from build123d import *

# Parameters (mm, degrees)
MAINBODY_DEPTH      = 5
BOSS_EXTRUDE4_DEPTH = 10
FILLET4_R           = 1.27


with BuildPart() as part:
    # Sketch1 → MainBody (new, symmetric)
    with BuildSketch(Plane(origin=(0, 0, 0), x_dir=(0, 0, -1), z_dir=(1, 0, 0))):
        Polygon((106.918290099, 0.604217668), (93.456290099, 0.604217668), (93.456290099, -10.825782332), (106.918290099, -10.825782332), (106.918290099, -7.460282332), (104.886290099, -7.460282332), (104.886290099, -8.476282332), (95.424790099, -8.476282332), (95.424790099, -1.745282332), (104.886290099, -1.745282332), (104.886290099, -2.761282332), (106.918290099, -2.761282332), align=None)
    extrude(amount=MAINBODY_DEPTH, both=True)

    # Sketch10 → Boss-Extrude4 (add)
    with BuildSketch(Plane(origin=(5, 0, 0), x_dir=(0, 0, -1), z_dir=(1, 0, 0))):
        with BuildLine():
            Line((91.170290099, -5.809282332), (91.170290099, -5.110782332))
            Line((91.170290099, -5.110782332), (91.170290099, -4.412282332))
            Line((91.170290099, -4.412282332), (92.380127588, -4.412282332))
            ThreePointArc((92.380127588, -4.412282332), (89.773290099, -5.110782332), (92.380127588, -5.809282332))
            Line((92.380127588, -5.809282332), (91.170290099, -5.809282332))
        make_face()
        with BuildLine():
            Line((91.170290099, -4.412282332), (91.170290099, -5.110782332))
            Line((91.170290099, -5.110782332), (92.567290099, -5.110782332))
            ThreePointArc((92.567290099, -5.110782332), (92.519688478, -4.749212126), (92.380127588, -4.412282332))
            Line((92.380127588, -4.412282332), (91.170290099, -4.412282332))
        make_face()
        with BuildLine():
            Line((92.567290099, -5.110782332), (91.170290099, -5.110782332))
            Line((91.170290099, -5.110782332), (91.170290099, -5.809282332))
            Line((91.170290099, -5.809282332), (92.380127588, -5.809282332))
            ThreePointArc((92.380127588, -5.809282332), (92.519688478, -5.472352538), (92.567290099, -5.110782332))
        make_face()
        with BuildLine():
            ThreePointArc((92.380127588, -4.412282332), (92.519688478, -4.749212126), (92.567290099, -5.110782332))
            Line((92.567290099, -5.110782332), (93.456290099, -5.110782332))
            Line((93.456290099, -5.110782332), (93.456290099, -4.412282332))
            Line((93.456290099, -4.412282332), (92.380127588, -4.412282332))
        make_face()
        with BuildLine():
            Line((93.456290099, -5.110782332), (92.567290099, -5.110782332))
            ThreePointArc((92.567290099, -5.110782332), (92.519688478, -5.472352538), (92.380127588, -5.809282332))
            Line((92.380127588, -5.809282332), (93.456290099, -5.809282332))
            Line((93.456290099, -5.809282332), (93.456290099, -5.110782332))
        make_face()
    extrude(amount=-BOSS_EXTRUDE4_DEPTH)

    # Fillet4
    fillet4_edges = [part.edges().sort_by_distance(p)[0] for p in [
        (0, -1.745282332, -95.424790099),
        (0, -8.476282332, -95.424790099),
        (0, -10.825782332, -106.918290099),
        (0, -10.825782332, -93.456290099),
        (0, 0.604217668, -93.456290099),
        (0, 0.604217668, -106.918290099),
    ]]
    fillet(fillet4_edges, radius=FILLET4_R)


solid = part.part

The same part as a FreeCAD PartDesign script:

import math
import FreeCAD as App
import Part
import Sketcher

V = App.Vector
Q = App.Units.Quantity


def edges_at(feature, points):
    """Names of the edges that pass closest to the given points."""
    edges = feature.Shape.Edges
    near = lambda p: min(range(len(edges)), key=lambda i: edges[i].distToShape(Part.Vertex(*p))[0])
    return sorted({f"Edge{near(p) + 1}" for p in points})

doc = App.newDocument("Part")
params = doc.addObject("Spreadsheet::Sheet", "Params")
for row, (alias, value) in enumerate([
    ("sketch1_width", "0.45 in"),
    ("sketch1_width2", "0.04 in"),
    ("sketch1_height", "0.53 in"),
    ("sketch1_height2", "0.08 in"),
    ("sketch1_width3", "0.265 in"),
    ("pad1_length", "10 mm"),
    ("sketch2_radius", "0.055 in"),
    ("sketch2_width", "0.055 in"),
    ("pad2_length", "10 mm"),
    ("fillet_radius", "0.05 in"),
], start=1):
    params.set(f"A{row}", alias)
    params.set(f"B{row}", "=" + value)
    params.setAlias(f"B{row}", alias)

body = doc.addObject("PartDesign::Body", "Body")

sketch1 = doc.addObject("Sketcher::SketchObject", "Sketch")
body.addObject(sketch1)
sketch1.AttachmentSupport = (doc.YZ_Plane, [""])
sketch1.MapMode = "FlatFace"
sketch1.addGeometry([
    Part.LineSegment(V(0.6, -106.9, 0), V(0.6, -93.5, 0)),
    Part.LineSegment(V(0.6, -93.5, 0), V(-10.8, -93.5, 0)),
    Part.LineSegment(V(-10.8, -93.5, 0), V(-10.8, -106.9, 0)),
    Part.LineSegment(V(-10.8, -106.9, 0), V(-7.5, -106.9, 0)),
    Part.LineSegment(V(-7.5, -106.9, 0), V(-7.5, -104.9, 0)),
    Part.LineSegment(V(-7.5, -104.9, 0), V(-8.5, -104.9, 0)),
    Part.LineSegment(V(-8.5, -104.9, 0), V(-8.5, -95.4, 0)),
    Part.LineSegment(V(-8.5, -95.4, 0), V(-1.7, -95.4, 0)),
    Part.LineSegment(V(-1.7, -95.4, 0), V(-1.7, -104.9, 0)),
    Part.LineSegment(V(-1.7, -104.9, 0), V(-2.8, -104.9, 0)),
    Part.LineSegment(V(-2.8, -104.9, 0), V(-2.8, -106.9, 0)),
    Part.LineSegment(V(-2.8, -106.9, 0), V(0.6, -106.9, 0)),
], False)
sketch1.addConstraint([
    Sketcher.Constraint("Coincident", 0, 2, 1, 1),
    Sketcher.Constraint("Coincident", 1, 2, 2, 1),
    Sketcher.Constraint("Coincident", 2, 2, 3, 1),
    Sketcher.Constraint("Coincident", 3, 2, 4, 1),
    Sketcher.Constraint("Coincident", 4, 2, 5, 1),
    Sketcher.Constraint("Coincident", 5, 2, 6, 1),
    Sketcher.Constraint("Coincident", 6, 2, 7, 1),
    Sketcher.Constraint("Coincident", 7, 2, 8, 1),
    Sketcher.Constraint("Coincident", 8, 2, 9, 1),
    Sketcher.Constraint("Coincident", 9, 2, 10, 1),
    Sketcher.Constraint("Coincident", 10, 2, 11, 1),
    Sketcher.Constraint("Coincident", 11, 2, 0, 1),
    Sketcher.Constraint("Vertical", 0),
    Sketcher.Constraint("Horizontal", 1),
    Sketcher.Constraint("Vertical", 2),
    Sketcher.Constraint("Horizontal", 3),
    Sketcher.Constraint("Vertical", 4),
    Sketcher.Constraint("Horizontal", 5),
    Sketcher.Constraint("Vertical", 6),
    Sketcher.Constraint("Horizontal", 7),
    Sketcher.Constraint("Vertical", 8),
    Sketcher.Constraint("Horizontal", 9),
    Sketcher.Constraint("Vertical", 10),
    Sketcher.Constraint("Horizontal", 11),
    Sketcher.Constraint("Horizontal", 5, 2, 8, 2),
    Sketcher.Constraint("Horizontal", 3, 2, 10, 2),
    Sketcher.Constraint("Equal", 5, 9),
    Sketcher.Constraint("Equal", 3, 11),
    Sketcher.Constraint("DistanceX", 1, 2, 1, 1, Q("0.45 in")),
    Sketcher.Constraint("DistanceX", 5, 2, 5, 1, Q("0.04 in")),
    Sketcher.Constraint("DistanceY", 0, 1, 0, 2, Q("0.53 in")),
    Sketcher.Constraint("DistanceY", 4, 1, 4, 2, Q("0.08 in")),
    Sketcher.Constraint("DistanceX", 7, 1, 7, 2, Q("0.265 in")),
    Sketcher.Constraint("DistanceY", 6, 1, 6, 2, Q("0.3725 in")),
    Sketcher.Constraint("DistanceY", 0, 2, -1, 1, 93.45629),
    Sketcher.Constraint("DistanceX", -1, 1, 0, 2, 0.604218),
])
sketch1.setExpression("Constraints[28]", "Params.sketch1_width")
sketch1.setExpression("Constraints[29]", "Params.sketch1_width2")
sketch1.setExpression("Constraints[30]", "Params.sketch1_height")
sketch1.setExpression("Constraints[31]", "Params.sketch1_height2")
sketch1.setExpression("Constraints[32]", "Params.sketch1_width3")
pad1 = doc.addObject("PartDesign::Pad", "Pad")
body.addObject(pad1)
pad1.Profile = sketch1
pad1.setExpression("Length", "Params.pad1_length")
pad1.Midplane = True

sketch2 = doc.addObject("Sketcher::SketchObject", "Sketch001")
body.addObject(sketch2)
sketch2.AttachmentSupport = (doc.YZ_Plane, [""])
sketch2.MapMode = "FlatFace"
sketch2.AttachmentOffset = App.Placement(V(0, 0, 5), App.Rotation())
sketch2.addGeometry([
    Part.ArcOfCircle(Part.Circle(V(-5.1, -91.2, 0), V(0, 0, 1), 1.4), math.radians(-60), math.radians(240)),
    Part.LineSegment(V(-5.8, -92.4, 0), V(-5.8, -93.5, 0)),
    Part.LineSegment(V(-5.8, -93.5, 0), V(-4.4, -93.5, 0)),
    Part.LineSegment(V(-4.4, -93.5, 0), V(-4.4, -92.4, 0)),
], False)
sketch2.addConstraint([
    Sketcher.Constraint("Coincident", 0, 2, 1, 1),
    Sketcher.Constraint("Coincident", 1, 2, 2, 1),
    Sketcher.Constraint("Coincident", 2, 2, 3, 1),
    Sketcher.Constraint("Coincident", 3, 2, 0, 1),
    Sketcher.Constraint("Vertical", 1),
    Sketcher.Constraint("Horizontal", 2),
    Sketcher.Constraint("Vertical", 3),
    Sketcher.Constraint("Horizontal", 0, 2, 3, 2),
    Sketcher.Constraint("Radius", 0, Q("0.055 in")),
    Sketcher.Constraint("DistanceX", 2, 1, 2, 2, Q("0.055 in")),
    Sketcher.Constraint("DistanceY", 1, 2, 0, 3, Q("0.09 in")),
    Sketcher.Constraint("DistanceY", 0, 3, -1, 1, 91.17029),
    Sketcher.Constraint("DistanceX", 0, 3, -1, 1, 5.110782),
])
sketch2.setExpression("Constraints[8]", "Params.sketch2_radius")
sketch2.setExpression("Constraints[9]", "Params.sketch2_width")
pad2 = doc.addObject("PartDesign::Pad", "Pad001")
body.addObject(pad2)
pad2.Profile = sketch2
pad2.setExpression("Length", "Params.pad2_length")
pad2.Reversed = True
doc.recompute()

fillet = doc.addObject("PartDesign::Fillet", "Fillet")
body.addObject(fillet)
fillet.Base = (pad2, edges_at(pad2, [
    (0, -1.745, -95.425),
    (0, -8.476, -95.425),
    (0, -10.826, -106.918),
    (0, -10.826, -93.456),
    (0, 0.604, -93.456),
    (0, 0.604, -106.918),
]))
fillet.setExpression("Radius", "Params.fillet_radius")

doc.recompute()
